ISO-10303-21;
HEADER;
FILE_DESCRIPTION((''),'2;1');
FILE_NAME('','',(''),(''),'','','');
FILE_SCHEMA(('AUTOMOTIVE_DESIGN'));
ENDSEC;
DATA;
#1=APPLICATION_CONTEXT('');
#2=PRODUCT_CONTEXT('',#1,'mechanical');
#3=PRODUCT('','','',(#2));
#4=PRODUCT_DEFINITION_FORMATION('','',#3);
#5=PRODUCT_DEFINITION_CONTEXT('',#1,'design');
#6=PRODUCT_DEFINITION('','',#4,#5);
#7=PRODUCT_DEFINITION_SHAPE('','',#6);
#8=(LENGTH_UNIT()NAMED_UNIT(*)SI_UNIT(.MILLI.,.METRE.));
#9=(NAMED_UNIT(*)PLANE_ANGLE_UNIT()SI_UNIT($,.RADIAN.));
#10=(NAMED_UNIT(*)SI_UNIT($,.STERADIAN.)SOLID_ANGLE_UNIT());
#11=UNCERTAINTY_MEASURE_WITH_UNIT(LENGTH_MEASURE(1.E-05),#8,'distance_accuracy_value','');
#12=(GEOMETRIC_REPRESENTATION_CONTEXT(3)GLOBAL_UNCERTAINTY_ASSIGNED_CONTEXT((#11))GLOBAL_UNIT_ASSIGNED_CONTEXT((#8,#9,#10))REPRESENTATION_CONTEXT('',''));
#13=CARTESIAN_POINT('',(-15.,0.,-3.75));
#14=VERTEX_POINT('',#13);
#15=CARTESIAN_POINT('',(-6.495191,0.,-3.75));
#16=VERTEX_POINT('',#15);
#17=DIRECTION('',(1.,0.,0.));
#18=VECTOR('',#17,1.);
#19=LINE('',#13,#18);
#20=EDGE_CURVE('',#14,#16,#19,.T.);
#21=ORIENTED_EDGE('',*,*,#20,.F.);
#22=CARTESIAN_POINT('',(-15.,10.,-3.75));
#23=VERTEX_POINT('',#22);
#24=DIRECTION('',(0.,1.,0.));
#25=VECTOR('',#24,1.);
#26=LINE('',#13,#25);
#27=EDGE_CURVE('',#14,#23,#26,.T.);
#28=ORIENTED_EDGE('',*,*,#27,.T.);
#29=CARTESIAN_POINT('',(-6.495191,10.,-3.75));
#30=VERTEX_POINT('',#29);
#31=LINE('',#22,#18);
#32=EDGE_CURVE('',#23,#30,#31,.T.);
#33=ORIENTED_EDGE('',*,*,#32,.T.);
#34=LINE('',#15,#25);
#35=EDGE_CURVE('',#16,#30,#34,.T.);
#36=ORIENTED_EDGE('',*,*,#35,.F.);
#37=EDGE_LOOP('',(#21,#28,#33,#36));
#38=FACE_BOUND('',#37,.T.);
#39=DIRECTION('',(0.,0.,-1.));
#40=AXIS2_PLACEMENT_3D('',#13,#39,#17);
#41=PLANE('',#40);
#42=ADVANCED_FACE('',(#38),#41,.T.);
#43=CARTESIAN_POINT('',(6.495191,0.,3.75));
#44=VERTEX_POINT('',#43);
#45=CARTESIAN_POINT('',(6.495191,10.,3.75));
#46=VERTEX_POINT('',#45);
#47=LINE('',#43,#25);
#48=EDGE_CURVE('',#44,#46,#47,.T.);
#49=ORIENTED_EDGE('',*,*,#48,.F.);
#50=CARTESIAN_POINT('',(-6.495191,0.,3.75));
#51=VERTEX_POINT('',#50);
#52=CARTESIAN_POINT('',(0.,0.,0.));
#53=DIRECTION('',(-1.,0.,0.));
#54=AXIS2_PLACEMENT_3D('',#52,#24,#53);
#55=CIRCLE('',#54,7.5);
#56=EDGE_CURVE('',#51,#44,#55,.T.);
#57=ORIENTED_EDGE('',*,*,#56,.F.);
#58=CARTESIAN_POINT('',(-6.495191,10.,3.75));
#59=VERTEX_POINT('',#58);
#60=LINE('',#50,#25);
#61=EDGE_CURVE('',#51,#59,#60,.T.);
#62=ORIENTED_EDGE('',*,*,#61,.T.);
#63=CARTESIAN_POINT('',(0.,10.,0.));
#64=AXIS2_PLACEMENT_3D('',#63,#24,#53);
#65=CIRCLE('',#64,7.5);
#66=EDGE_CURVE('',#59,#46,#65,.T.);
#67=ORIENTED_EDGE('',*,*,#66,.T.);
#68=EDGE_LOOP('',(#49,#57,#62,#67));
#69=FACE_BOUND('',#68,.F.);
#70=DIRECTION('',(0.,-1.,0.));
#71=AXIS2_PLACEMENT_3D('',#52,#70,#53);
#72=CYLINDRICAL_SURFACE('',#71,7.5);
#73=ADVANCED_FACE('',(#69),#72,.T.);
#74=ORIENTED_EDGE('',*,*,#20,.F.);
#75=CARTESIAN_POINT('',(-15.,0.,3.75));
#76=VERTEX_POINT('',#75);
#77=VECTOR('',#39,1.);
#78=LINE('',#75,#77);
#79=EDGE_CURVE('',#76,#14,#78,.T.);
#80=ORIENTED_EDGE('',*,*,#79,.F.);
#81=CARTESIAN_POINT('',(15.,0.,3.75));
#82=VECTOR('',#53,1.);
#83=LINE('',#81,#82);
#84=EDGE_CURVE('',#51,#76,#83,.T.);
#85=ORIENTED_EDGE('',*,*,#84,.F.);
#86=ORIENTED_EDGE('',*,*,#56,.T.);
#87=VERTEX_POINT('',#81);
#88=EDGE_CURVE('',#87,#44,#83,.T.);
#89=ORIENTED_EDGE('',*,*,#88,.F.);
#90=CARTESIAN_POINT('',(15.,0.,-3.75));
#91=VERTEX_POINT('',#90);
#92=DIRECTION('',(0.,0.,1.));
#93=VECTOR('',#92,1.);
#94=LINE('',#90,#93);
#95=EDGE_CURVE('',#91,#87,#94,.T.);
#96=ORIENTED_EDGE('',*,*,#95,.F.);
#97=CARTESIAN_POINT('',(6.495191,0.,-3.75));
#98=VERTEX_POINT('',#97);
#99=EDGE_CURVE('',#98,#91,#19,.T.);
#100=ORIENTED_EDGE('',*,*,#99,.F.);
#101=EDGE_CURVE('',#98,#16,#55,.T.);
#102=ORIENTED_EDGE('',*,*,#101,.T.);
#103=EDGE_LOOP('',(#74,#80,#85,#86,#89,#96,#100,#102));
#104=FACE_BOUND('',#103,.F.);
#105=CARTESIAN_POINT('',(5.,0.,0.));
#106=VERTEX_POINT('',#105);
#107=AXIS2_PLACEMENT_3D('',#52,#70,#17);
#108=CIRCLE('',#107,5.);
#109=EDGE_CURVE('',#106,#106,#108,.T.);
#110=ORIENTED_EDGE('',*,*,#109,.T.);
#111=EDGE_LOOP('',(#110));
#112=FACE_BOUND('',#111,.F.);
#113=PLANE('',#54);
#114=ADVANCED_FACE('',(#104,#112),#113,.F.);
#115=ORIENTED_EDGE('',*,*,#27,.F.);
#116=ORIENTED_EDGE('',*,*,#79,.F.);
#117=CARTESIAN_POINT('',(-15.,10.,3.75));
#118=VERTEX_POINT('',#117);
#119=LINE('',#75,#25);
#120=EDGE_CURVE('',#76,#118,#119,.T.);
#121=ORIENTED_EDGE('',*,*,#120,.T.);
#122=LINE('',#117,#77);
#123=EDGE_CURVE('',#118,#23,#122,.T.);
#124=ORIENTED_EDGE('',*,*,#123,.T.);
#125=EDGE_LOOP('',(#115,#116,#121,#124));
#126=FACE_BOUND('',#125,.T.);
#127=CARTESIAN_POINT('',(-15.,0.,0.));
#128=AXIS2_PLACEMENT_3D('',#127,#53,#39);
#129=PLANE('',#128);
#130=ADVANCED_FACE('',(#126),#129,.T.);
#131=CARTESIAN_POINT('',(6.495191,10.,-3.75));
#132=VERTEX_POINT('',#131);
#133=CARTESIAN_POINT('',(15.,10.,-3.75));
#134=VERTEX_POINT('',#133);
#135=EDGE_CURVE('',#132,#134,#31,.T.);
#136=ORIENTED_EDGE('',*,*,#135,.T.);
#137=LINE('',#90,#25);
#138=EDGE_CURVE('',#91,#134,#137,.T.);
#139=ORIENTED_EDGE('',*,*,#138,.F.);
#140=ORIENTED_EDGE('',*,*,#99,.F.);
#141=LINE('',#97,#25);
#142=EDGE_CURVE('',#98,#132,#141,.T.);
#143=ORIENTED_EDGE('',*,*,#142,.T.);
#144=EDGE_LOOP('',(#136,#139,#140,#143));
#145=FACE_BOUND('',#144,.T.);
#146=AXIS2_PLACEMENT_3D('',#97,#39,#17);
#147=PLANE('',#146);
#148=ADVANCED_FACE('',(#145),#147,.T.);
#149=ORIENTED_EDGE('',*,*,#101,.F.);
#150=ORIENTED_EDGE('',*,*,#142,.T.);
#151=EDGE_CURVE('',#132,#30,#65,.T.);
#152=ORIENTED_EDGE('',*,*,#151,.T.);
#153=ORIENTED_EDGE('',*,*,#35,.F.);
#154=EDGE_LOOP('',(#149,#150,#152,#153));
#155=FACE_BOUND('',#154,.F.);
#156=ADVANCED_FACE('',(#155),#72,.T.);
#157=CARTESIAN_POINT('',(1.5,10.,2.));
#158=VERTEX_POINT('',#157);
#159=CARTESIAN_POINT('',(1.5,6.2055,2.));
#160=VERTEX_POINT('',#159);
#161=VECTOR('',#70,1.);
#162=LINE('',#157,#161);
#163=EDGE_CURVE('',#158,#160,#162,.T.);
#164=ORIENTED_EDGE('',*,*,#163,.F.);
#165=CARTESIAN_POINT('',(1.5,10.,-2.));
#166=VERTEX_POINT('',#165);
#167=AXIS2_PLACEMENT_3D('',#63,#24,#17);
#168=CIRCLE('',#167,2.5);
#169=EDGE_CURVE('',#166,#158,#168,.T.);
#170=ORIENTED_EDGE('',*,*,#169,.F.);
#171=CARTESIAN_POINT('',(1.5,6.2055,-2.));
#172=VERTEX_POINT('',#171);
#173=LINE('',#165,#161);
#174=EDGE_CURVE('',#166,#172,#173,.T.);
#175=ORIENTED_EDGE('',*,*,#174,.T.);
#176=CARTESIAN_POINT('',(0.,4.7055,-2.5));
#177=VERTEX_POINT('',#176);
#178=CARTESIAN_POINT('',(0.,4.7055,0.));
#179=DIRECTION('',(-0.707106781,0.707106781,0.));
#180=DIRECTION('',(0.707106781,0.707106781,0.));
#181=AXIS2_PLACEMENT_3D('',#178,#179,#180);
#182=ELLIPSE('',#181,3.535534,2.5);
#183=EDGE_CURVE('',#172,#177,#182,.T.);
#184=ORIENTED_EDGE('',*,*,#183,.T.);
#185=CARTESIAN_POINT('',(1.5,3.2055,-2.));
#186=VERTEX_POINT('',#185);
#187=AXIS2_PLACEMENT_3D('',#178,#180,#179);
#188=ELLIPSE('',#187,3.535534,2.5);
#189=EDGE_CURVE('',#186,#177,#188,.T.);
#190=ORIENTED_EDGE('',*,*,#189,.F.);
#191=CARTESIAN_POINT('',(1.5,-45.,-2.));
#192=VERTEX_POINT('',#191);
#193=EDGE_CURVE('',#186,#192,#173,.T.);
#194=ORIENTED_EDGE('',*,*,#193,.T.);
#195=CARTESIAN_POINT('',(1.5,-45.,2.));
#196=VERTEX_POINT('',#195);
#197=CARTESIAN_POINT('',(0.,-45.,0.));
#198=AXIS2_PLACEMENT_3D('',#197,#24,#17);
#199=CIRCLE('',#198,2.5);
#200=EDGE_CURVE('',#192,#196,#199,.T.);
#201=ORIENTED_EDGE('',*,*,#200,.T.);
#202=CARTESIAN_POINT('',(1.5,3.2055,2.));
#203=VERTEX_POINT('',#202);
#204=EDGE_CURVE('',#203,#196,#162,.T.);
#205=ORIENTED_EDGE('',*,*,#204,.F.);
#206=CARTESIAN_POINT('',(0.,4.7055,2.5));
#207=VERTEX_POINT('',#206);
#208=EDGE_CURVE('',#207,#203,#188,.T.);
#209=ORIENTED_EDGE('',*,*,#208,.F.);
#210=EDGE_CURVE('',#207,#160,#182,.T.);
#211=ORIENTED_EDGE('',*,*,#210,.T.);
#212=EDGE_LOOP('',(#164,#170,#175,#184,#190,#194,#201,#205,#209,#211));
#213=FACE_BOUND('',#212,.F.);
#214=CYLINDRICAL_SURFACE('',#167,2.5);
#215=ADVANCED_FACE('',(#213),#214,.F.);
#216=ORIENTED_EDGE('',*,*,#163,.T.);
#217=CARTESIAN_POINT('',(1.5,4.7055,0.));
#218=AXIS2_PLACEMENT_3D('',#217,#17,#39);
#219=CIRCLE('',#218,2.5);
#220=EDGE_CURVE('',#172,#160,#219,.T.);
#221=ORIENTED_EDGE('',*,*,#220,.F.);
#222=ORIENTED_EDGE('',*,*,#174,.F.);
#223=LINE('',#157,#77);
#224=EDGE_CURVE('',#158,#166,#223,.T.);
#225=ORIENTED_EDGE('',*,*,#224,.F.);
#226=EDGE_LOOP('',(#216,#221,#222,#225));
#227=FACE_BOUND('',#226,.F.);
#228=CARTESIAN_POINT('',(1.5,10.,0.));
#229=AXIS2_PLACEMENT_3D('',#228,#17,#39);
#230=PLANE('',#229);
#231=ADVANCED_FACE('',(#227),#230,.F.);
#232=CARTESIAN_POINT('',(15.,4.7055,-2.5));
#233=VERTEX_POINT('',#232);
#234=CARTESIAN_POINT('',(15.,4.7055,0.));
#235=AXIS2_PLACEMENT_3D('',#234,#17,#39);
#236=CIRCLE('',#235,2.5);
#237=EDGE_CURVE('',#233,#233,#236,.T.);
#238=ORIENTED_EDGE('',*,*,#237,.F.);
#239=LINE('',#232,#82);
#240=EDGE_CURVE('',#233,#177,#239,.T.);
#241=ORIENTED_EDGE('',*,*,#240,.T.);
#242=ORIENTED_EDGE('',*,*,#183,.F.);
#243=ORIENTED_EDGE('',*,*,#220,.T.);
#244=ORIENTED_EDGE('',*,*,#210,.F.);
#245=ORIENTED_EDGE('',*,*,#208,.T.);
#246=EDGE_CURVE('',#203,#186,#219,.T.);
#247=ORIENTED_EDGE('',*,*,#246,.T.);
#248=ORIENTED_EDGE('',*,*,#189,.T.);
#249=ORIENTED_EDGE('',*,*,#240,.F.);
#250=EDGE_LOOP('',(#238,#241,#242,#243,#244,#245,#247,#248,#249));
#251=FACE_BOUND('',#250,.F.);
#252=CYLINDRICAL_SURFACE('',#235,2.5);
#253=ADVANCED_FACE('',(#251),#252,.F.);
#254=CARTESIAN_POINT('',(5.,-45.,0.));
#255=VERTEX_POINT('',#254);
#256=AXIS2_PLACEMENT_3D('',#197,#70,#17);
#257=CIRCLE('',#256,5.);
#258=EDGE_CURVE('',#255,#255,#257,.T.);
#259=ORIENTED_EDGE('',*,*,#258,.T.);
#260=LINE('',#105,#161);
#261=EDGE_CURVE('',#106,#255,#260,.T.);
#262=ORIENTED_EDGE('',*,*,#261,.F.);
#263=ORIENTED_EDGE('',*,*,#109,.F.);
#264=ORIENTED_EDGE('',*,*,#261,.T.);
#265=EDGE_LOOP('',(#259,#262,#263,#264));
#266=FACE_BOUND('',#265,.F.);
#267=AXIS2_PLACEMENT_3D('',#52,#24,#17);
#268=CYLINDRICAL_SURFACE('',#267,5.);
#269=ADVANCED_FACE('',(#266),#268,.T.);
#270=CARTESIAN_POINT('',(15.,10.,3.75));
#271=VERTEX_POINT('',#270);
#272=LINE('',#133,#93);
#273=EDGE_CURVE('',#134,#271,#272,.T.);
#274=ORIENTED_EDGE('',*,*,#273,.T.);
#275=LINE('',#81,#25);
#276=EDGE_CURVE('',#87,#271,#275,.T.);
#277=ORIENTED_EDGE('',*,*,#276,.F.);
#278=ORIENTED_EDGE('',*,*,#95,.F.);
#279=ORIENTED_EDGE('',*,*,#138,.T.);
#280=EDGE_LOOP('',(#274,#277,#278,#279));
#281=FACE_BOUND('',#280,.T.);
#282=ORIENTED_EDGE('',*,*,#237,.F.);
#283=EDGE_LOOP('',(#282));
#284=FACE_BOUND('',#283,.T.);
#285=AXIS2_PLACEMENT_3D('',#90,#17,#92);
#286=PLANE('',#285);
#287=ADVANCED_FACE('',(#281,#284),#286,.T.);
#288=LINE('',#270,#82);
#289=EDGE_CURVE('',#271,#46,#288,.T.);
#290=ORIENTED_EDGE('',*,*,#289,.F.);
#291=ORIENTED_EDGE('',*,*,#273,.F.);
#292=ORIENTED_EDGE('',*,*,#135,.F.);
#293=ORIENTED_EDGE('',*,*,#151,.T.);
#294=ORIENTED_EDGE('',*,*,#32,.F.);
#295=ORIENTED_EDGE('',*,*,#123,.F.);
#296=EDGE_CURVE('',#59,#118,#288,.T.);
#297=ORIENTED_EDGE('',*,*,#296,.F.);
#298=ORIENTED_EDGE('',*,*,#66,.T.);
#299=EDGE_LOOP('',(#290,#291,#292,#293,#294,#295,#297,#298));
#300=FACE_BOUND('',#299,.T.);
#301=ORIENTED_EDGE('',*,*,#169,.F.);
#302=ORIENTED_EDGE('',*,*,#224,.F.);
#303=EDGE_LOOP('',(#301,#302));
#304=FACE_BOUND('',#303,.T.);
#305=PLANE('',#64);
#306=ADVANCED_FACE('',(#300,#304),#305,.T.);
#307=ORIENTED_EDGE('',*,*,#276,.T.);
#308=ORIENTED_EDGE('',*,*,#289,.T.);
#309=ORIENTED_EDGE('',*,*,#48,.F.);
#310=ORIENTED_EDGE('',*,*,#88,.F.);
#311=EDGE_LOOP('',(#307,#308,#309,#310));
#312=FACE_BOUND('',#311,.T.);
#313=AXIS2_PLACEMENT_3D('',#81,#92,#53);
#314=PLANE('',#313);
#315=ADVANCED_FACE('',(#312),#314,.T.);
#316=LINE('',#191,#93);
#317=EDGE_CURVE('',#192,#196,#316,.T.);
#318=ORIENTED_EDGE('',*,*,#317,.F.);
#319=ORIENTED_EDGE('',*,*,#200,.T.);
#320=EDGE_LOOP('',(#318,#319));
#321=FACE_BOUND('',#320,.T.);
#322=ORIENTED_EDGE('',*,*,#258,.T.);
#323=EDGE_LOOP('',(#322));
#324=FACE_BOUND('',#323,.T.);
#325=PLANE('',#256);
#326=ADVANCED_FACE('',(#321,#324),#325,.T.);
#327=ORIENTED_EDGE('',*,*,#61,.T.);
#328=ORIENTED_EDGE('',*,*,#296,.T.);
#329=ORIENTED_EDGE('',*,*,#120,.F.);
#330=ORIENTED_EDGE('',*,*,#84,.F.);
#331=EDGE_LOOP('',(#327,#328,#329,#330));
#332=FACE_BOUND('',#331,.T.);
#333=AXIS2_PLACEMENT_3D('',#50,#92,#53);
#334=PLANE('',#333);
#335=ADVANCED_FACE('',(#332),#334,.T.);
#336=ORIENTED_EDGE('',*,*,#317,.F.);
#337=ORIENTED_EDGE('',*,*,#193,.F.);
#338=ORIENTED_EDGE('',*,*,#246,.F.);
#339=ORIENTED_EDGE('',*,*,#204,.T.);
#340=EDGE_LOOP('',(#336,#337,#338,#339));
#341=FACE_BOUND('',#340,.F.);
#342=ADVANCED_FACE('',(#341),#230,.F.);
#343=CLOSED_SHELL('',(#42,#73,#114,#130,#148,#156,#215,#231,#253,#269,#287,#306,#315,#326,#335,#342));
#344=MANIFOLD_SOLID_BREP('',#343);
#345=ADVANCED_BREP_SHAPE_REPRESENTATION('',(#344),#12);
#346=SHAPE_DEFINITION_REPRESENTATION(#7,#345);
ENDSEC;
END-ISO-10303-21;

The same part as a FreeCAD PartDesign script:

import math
import FreeCAD as App
import Part
import Sketcher

V = App.Vector
Q = App.Units.Quantity

doc = App.newDocument("Part")
params = doc.addObject("Spreadsheet::Sheet", "Params")
for row, (alias, value) in enumerate([
    ("sketch1_radius", "7.5 mm"),
    ("sketch1_height", "7.5 mm"),
    ("pad1_length", "10 mm"),
    ("sketch2_diameter", "10 mm"),
    ("pad2_length", "45 mm"),
    ("sketch3_diameter", "5 mm"),
    ("pocket1_length", "60 mm"),
    ("sketch4_radius", "2.5 mm"),
    ("sketch4_height", "4 mm"),
    ("pad3_length", "55 mm"),
    ("sketch5_diameter", "5 mm"),
    ("pocket2_length", "15 mm"),
], start=1):
    params.set(f"A{row}", alias)
    params.set(f"B{row}", "=" + value)
    params.setAlias(f"B{row}", alias)

body = doc.addObject("PartDesign::Body", "Body")

# Sketch on XZ plane
sketch1 = body.newObject("Sketcher::SketchObject", "Sketch")
sketch1.AttachmentSupport = (doc.getObject("XZ_Plane"), [""])
sketch1.MapMode = "FlatFace"
sketch1.addGeometry(Part.LineSegment(V(-15, -3.75, 0), V(-15, 3.75, 0)), False)
sketch1.addGeometry(Part.LineSegment(V(-15, 3.75, 0), V(-6.495191, 3.75, 0)), False)
sketch1.addGeometry(Part.ArcOfCircle(Part.Circle(V(0, 0, 0), V(0, 0, 1), 7.5), math.radians(30), math.radians(150)), False)
sketch1.addGeometry(Part.LineSegment(V(6.495191, 3.75, 0), V(15, 3.75, 0)), False)
sketch1.addGeometry(Part.LineSegment(V(15, 3.75, 0), V(15, -3.75, 0)), False)
sketch1.addGeometry(Part.LineSegment(V(15, -3.75, 0), V(6.495191, -3.75, 0)), False)
sketch1.addGeometry(Part.ArcOfCircle(Part.Circle(V(0, 0, 0), V(0, 0, 1), 7.5), math.radians(-150), math.radians(-30)), False)
sketch1.addGeometry(Part.LineSegment(V(-6.495191, -3.75, 0), V(-15, -3.75, 0)), False)
sketch1.addConstraint(Sketcher.Constraint("Coincident", 0, 2, 1, 1))
sketch1.addConstraint(Sketcher.Constraint("Coincident", 1, 2, 2, 2))
sketch1.addConstraint(Sketcher.Constraint("Coincident", 2, 1, 3, 1))
sketch1.addConstraint(Sketcher.Constraint("Coincident", 3, 2, 4, 1))
sketch1.addConstraint(Sketcher.Constraint("Coincident", 4, 2, 5, 1))
sketch1.addConstraint(Sketcher.Constraint("Coincident", 5, 2, 6, 2))
sketch1.addConstraint(Sketcher.Constraint("Coincident", 6, 1, 7, 1))
sketch1.addConstraint(Sketcher.Constraint("Coincident", 7, 2, 0, 1))
sketch1.addConstraint(Sketcher.Constraint("Vertical", 0))
sketch1.addConstraint(Sketcher.Constraint("Horizontal", 1))
sketch1.addConstraint(Sketcher.Constraint("Horizontal", 3))
sketch1.addConstraint(Sketcher.Constraint("Vertical", 4))
sketch1.addConstraint(Sketcher.Constraint("Horizontal", 5))
sketch1.addConstraint(Sketcher.Constraint("Horizontal", 7))
sketch1.addConstraint(Sketcher.Constraint("Coincident", 2, 3, -1, 1))
sketch1.addConstraint(Sketcher.Constraint("Coincident", 6, 3, -1, 1))
sketch1.addConstraint(Sketcher.Constraint("Equal", 2, 6))
sketch1.addConstraint(Sketcher.Constraint("Symmetric", 0, 2, 4, 2, -1, 1))
sketch1.addConstraint(Sketcher.Constraint("Horizontal", 1, 2, 2, 1))
sketch1.addConstraint(Sketcher.Constraint("Horizontal", 5, 2, 6, 1))
sketch1.addConstraint(Sketcher.Constraint("Radius", 2, Q("7.5 mm")))
sketch1.addConstraint(Sketcher.Constraint("DistanceY", 0, 1, 0, 2, Q("7.5 mm")))
sketch1.addConstraint(Sketcher.Constraint("DistanceX", 0, 2, -1, 1, Q("15 mm")))
sketch1.setExpression("Constraints[20]", "Params.sketch1_radius")
sketch1.setExpression("Constraints[21]", "Params.sketch1_height")
pad1 = body.newObject("PartDesign::Pad", "Pad")
pad1.Profile = sketch1
pad1.setExpression("Length", "Params.pad1_length")
pad1.Reversed = True

# Sketch on XZ plane
sketch2 = body.newObject("Sketcher::SketchObject", "Sketch001")
sketch2.AttachmentSupport = (doc.getObject("XZ_Plane"), [""])
sketch2.MapMode = "FlatFace"
sketch2.addGeometry(Part.Circle(V(0, 0, 0), V(0, 0, 1), 5), False)
sketch2.addConstraint(Sketcher.Constraint("Coincident", 0, 3, -1, 1))
sketch2.addConstraint(Sketcher.Constraint("Diameter", 0, Q("10 mm")))
sketch2.setExpression("Constraints[1]", "Params.sketch2_diameter")
pad2 = body.newObject("PartDesign::Pad", "Pad001")
pad2.Profile = sketch2
pad2.setExpression("Length", "Params.pad2_length")

# Sketch on XZ plane
sketch3 = body.newObject("Sketcher::SketchObject", "Sketch002")
sketch3.AttachmentSupport = (doc.getObject("XZ_Plane"), [""])
sketch3.MapMode = "FlatFace"
sketch3.AttachmentOffset = App.Placement(V(0, 0, -10), App.Rotation())
sketch3.addGeometry(Part.Circle(V(0, 0, 0), V(0, 0, 1), 2.5), False)
sketch3.addConstraint(Sketcher.Constraint("Coincident", 0, 3, -1, 1))
sketch3.addConstraint(Sketcher.Constraint("Diameter", 0, Q("5 mm")))
sketch3.setExpression("Constraints[1]", "Params.sketch3_diameter")
pocket1 = body.newObject("PartDesign::Pocket", "Pocket")
pocket1.Profile = sketch3
pocket1.setExpression("Length", "Params.pocket1_length")
pocket1.Reversed = True

# Sketch on XZ plane
sketch4 = body.newObject("Sketcher::SketchObject", "Sketch003")
sketch4.AttachmentSupport = (doc.getObject("XZ_Plane"), [""])
sketch4.MapMode = "FlatFace"
sketch4.AttachmentOffset = App.Placement(V(0, 0, -10), App.Rotation())
sketch4.addGeometry(Part.LineSegment(V(1.5, -2, 0), V(1.5, 2, 0)), False)
sketch4.addGeometry(Part.ArcOfCircle(Part.Circle(V(0, 0, 0), V(0, 0, 1), 2.5), math.radians(-53.130102), math.radians(53.130102)), False)
sketch4.addConstraint(Sketcher.Constraint("Coincident", 0, 1, 1, 1))
sketch4.addConstraint(Sketcher.Constraint("Coincident", 1, 2, 0, 2))
sketch4.addConstraint(Sketcher.Constraint("Vertical", 0))
sketch4.addConstraint(Sketcher.Constraint("Coincident", 1, 3, -1, 1))
sketch4.addConstraint(Sketcher.Constraint("Radius", 1, Q("2.5 mm")))
sketch4.addConstraint(Sketcher.Constraint("DistanceY", 0, 1, 0, 2, Q("4 mm")))
sketch4.setExpression("Constraints[4]", "Params.sketch4_radius")
sketch4.setExpression("Constraints[5]", "Params.sketch4_height")
pad3 = body.newObject("PartDesign::Pad", "Pad002")
pad3.Profile = sketch4
pad3.setExpression("Length", "Params.pad3_length")

# Sketch on YZ plane
sketch5 = body.newObject("Sketcher::SketchObject", "Sketch004")
sketch5.AttachmentSupport = (doc.getObject("YZ_Plane"), [""])
sketch5.MapMode = "FlatFace"
sketch5.AttachmentOffset = App.Placement(V(0, 0, 15), App.Rotation())
sketch5.addGeometry(Part.Circle(V(4.7055, 0, 0), V(0, 0, 1), 2.5), False)
sketch5.addConstraint(Sketcher.Constraint("PointOnObject", 0, 3, -1))
sketch5.addConstraint(Sketcher.Constraint("Diameter", 0, Q("5 mm")))
sketch5.addConstraint(Sketcher.Constraint("DistanceX", -1, 1, 0, 3, Q("4.7055 mm")))
sketch5.setExpression("Constraints[1]", "Params.sketch5_diameter")
pocket2 = body.newObject("PartDesign::Pocket", "Pocket001")
pocket2.Profile = sketch5
pocket2.setExpression("Length", "Params.pocket2_length")

doc.recompute()
